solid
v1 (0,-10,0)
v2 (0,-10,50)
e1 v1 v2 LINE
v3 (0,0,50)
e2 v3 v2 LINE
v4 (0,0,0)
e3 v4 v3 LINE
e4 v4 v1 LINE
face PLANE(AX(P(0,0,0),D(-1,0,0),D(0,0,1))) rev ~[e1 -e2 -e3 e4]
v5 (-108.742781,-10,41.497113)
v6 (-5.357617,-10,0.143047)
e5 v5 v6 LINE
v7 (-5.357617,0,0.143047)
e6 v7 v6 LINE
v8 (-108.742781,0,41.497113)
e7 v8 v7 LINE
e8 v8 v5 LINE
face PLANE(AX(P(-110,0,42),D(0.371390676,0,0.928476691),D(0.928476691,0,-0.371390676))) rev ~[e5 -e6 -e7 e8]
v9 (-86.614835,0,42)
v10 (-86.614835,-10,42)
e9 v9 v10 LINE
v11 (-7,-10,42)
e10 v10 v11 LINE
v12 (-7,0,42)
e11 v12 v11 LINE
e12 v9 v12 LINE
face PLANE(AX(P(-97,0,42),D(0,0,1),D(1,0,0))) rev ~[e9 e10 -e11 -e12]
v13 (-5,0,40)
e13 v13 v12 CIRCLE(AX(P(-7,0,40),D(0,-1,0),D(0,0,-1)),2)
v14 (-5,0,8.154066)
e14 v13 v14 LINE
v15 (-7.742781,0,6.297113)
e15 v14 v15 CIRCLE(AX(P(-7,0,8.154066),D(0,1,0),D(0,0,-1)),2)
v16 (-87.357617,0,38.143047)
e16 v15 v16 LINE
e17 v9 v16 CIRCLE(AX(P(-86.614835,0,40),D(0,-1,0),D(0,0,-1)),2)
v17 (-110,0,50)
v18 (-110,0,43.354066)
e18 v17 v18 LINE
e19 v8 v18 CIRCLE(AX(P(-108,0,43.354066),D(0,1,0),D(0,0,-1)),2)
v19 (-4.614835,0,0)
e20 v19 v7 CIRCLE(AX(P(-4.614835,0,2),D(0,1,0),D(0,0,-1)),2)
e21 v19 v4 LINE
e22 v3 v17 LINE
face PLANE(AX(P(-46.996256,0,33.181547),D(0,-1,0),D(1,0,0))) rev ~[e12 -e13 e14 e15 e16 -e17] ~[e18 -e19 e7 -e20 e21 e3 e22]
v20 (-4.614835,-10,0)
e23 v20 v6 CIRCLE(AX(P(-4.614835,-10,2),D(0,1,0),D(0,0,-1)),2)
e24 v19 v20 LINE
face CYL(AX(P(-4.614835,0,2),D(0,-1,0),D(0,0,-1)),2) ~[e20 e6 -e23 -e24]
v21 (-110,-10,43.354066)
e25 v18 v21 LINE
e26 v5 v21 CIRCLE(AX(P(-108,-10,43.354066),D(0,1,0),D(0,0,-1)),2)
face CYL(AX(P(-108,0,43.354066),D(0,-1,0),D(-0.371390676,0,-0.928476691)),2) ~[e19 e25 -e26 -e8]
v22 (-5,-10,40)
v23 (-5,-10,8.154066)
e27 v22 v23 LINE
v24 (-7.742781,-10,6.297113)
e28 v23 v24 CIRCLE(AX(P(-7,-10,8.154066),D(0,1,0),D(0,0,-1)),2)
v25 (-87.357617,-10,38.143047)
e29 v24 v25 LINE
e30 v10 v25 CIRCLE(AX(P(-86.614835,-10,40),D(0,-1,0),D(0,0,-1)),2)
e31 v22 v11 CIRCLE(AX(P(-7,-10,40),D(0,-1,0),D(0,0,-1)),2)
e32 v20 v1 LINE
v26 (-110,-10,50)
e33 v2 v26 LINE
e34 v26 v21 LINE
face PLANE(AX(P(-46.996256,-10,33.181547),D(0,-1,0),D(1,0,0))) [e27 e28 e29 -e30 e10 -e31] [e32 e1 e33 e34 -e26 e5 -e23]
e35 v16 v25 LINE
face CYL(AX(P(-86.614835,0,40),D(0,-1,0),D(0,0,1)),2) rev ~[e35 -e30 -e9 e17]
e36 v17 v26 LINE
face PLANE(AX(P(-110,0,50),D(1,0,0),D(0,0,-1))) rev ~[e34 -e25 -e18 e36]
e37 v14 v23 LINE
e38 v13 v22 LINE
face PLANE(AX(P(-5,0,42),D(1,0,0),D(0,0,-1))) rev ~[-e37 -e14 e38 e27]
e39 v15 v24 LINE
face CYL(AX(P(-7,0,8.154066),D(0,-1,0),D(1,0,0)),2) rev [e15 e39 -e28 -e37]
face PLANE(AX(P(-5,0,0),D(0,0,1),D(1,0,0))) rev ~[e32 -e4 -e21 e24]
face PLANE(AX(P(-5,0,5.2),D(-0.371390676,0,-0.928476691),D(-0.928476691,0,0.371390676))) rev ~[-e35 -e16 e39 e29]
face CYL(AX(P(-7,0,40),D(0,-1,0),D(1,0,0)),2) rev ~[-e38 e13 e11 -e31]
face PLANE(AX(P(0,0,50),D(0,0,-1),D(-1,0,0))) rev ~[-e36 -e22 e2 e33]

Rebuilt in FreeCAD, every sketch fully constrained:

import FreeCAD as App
import Part
import Sketcher
Q = App.Units.Quantity


def edges_at(feature, points):
    """Names of the edges that pass closest to the given points."""
    edges = feature.Shape.Edges
    near = lambda p: min(range(len(edges)), key=lambda i: edges[i].distToShape(Part.Vertex(*p))[0])
    return sorted({f"Edge{near(p) + 1}" for p in points})

doc = App.newDocument("Part")
params = doc.addObject("Spreadsheet::Sheet", "Params")
for row, (alias, value) in enumerate([
    ("sketch1_width", "5 mm"),
    ("sketch1_width2", "110 mm"),
    ("sketch1_width3", "92 mm"),
    ("sketch1_height", "50 mm"),
    ("sketch1_height2", "8 mm"),
    ("pad1_length", "10 mm"),
    ("fillet_radius", "2 mm"),
], start=1):
    params.set(f"A{row}", alias)
    params.set(f"B{row}", "=" + value)
    params.setAlias(f"B{row}", alias)

body = doc.addObject("PartDesign::Body", "Body")

sketch1 = body.newObject("Sketcher::SketchObject", "Sketch")
sketch1.AttachmentSupport = (doc.getObject("XZ_Plane"), [""])
sketch1.MapMode = "FlatFace"
sketch1.addGeometry(Part.LineSegment(App.Vector(-5, 0, 0), App.Vector(0, 0, 0)), False)
sketch1.addGeometry(Part.LineSegment(App.Vector(0, 0, 0), App.Vector(0, 50, 0)), False)
sketch1.addGeometry(Part.LineSegment(App.Vector(0, 50, 0), App.Vector(-110, 50, 0)), False)
sketch1.addGeometry(Part.LineSegment(App.Vector(-110, 50, 0), App.Vector(-110, 42, 0)), False)
sketch1.addGeometry(Part.LineSegment(App.Vector(-110, 42, 0), App.Vector(-5, 0, 0)), False)
sketch1.addGeometry(Part.LineSegment(App.Vector(-5, 42, 0), App.Vector(-5, 5, 0)), False)
sketch1.addGeometry(Part.LineSegment(App.Vector(-5, 5, 0), App.Vector(-97, 42, 0)), False)
sketch1.addGeometry(Part.LineSegment(App.Vector(-97, 42, 0), App.Vector(-5, 42, 0)), False)
sketch1.addConstraint(Sketcher.Constraint("Coincident", 0, 2, 1, 1))
sketch1.addConstraint(Sketcher.Constraint("Coincident", 1, 2, 2, 1))
sketch1.addConstraint(Sketcher.Constraint("Coincident", 2, 2, 3, 1))
sketch1.addConstraint(Sketcher.Constraint("Coincident", 3, 2, 4, 1))
sketch1.addConstraint(Sketcher.Constraint("Coincident", 4, 2, 0, 1))
sketch1.addConstraint(Sketcher.Constraint("Coincident", 5, 2, 6, 1))
sketch1.addConstraint(Sketcher.Constraint("Coincident", 6, 2, 7, 1))
sketch1.addConstraint(Sketcher.Constraint("Coincident", 7, 2, 5, 1))
sketch1.addConstraint(Sketcher.Constraint("Horizontal", 0))
sketch1.addConstraint(Sketcher.Constraint("Vertical", 1))
sketch1.addConstraint(Sketcher.Constraint("Horizontal", 2))
sketch1.addConstraint(Sketcher.Constraint("Vertical", 3))
sketch1.addConstraint(Sketcher.Constraint("Vertical", 5))
sketch1.addConstraint(Sketcher.Constraint("Horizontal", 7))
sketch1.addConstraint(Sketcher.Constraint("Coincident", 0, 2, -1, 1))
sketch1.addConstraint(Sketcher.Constraint("Parallel", 4, 6))
sketch1.addConstraint(Sketcher.Constraint("Horizontal", 3, 2, 6, 2))
sketch1.addConstraint(Sketcher.Constraint("Vertical", 4, 2, 5, 2))
sketch1.addConstraint(Sketcher.Constraint("DistanceX", 0, 1, 0, 2, Q("5 mm")))
sketch1.addConstraint(Sketcher.Constraint("DistanceX", 2, 2, 2, 1, Q("110 mm")))
sketch1.addConstraint(Sketcher.Constraint("DistanceX", 7, 1, 7, 2, Q("92 mm")))
sketch1.addConstraint(Sketcher.Constraint("DistanceY", 1, 1, 1, 2, Q("50 mm")))
sketch1.addConstraint(Sketcher.Constraint("DistanceY", 3, 2, 3, 1, Q("8 mm")))
sketch1.setExpression("Constraints[18]", "Params.sketch1_width")
sketch1.setExpression("Constraints[19]", "Params.sketch1_width2")
sketch1.setExpression("Constraints[20]", "Params.sketch1_width3")
sketch1.setExpression("Constraints[21]", "Params.sketch1_height")
sketch1.setExpression("Constraints[22]", "Params.sketch1_height2")
pad1 = body.newObject("PartDesign::Pad", "Pad")
pad1.Profile = sketch1
pad1.setExpression("Length", "Params.pad1_length")
doc.recompute()

fillet = body.newObject("PartDesign::Fillet", "Fillet")
fillet.Base = (pad1, edges_at(pad1, [
    (-97, -5, 42),
    (-5, -5, 5.2),
    (-5, -5, 42),
    (-110, -5, 42),
    (-5, -5, 0),
]))
fillet.setExpression("Radius", "Params.fillet_radius")

doc.recompute()
